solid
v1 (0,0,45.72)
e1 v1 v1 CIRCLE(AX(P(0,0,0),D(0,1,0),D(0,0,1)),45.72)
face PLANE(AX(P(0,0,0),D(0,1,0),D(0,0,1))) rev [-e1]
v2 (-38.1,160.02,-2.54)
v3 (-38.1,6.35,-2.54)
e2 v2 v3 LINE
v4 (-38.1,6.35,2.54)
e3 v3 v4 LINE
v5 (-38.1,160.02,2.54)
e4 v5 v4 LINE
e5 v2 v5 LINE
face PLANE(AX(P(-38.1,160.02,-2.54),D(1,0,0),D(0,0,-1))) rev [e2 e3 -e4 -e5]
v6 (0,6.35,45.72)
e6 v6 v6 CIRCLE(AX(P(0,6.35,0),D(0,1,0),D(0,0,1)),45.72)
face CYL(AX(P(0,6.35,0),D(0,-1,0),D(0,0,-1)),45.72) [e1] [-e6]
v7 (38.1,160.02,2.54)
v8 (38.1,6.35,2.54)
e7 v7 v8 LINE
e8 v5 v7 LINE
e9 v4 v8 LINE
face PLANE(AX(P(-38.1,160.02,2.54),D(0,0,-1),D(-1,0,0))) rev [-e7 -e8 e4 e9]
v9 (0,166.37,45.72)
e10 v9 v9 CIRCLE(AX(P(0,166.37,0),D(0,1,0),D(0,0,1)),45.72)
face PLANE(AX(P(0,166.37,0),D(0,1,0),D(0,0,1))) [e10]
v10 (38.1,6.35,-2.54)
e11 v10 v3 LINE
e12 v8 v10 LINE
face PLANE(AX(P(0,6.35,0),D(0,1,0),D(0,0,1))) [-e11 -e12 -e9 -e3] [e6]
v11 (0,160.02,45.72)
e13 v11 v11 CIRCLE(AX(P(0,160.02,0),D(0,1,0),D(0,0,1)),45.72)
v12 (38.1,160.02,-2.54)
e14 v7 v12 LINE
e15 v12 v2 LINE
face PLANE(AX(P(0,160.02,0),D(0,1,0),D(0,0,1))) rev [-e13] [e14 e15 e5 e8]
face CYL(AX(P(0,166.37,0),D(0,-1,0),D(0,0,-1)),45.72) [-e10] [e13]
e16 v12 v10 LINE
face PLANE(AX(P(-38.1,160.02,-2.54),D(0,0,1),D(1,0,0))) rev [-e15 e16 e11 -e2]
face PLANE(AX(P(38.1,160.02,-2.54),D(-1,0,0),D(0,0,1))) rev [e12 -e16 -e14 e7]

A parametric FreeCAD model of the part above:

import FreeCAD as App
import Part
import Sketcher

V = App.Vector
Q = App.Units.Quantity

doc = App.newDocument("Part")
body = doc.addObject("PartDesign::Body", "Body")

sketch1 = body.newObject("Sketcher::SketchObject", "Sketch")
sketch1.AttachmentSupport = (doc.getObject("XZ_Plane"), [""])
sketch1.MapMode = "FlatFace"
sketch1.addGeometry(Part.Circle(V(0, 0, 0), V(0, 0, 1), 46), False)
sketch1.addConstraint([
    Sketcher.Constraint("Coincident", 0, 3, -1, 1),
    Sketcher.Constraint("Diameter", 0, Q("3.6 in")),
])
pad1 = body.newObject("PartDesign::Pad", "Pad")
pad1.Profile = sketch1
pad1.Length = Q("0.25 in")
pad1.Reversed = True

sketch2 = body.newObject("Sketcher::SketchObject", "Sketch001")
sketch2.AttachmentSupport = (doc.getObject("XZ_Plane"), [""])
sketch2.MapMode = "FlatFace"
sketch2.AttachmentOffset = App.Placement(V(0, 0, -0.25 * 25.4), App.Rotation())
sketch2.addGeometry([
    Part.LineSegment(V(-38, -3, 0), V(-38, 3, 0)),
    Part.LineSegment(V(-38, 3, 0), V(38, 3, 0)),
    Part.LineSegment(V(38, 3, 0), V(38, -3, 0)),
    Part.LineSegment(V(38, -3, 0), V(-38, -3, 0)),
], False)
sketch2.addConstraint([
    Sketcher.Constraint("Coincident", 0, 2, 1, 1),
    Sketcher.Constraint("Coincident", 1, 2, 2, 1),
    Sketcher.Constraint("Coincident", 2, 2, 3, 1),
    Sketcher.Constraint("Coincident", 3, 2, 0, 1),
    Sketcher.Constraint("Vertical", 0),
    Sketcher.Constraint("Horizontal", 1),
    Sketcher.Constraint("Vertical", 2),
    Sketcher.Constraint("Horizontal", 3),
    Sketcher.Constraint("Symmetric", 0, 2, 2, 2, -1, 1),
    Sketcher.Constraint("DistanceX", 1, 1, 1, 2, Q("3 in")),
    Sketcher.Constraint("DistanceY", 0, 1, 0, 2, Q("0.2 in")),
])
pad2 = body.newObject("PartDesign::Pad", "Pad001")
pad2.Profile = sketch2
pad2.Length = Q("6.05 in")
pad2.Reversed = True

sketch3 = body.newObject("Sketcher::SketchObject", "Sketch002")
sketch3.AttachmentSupport = (doc.getObject("XZ_Plane"), [""])
sketch3.MapMode = "FlatFace"
sketch3.AttachmentOffset = App.Placement(V(0, 0, -6.3 * 25.4), App.Rotation())
sketch3.addGeometry(Part.Circle(V(0, 0, 0), V(0, 0, 1), 46), False)
sketch3.addConstraint([
    Sketcher.Constraint("Coincident", 0, 3, -1, 1),
    Sketcher.Constraint("Diameter", 0, Q("3.6 in")),
])
pad3 = body.newObject("PartDesign::Pad", "Pad002")
pad3.Profile = sketch3
pad3.Length = Q("0.25 in")
pad3.Reversed = True

doc.recompute()
